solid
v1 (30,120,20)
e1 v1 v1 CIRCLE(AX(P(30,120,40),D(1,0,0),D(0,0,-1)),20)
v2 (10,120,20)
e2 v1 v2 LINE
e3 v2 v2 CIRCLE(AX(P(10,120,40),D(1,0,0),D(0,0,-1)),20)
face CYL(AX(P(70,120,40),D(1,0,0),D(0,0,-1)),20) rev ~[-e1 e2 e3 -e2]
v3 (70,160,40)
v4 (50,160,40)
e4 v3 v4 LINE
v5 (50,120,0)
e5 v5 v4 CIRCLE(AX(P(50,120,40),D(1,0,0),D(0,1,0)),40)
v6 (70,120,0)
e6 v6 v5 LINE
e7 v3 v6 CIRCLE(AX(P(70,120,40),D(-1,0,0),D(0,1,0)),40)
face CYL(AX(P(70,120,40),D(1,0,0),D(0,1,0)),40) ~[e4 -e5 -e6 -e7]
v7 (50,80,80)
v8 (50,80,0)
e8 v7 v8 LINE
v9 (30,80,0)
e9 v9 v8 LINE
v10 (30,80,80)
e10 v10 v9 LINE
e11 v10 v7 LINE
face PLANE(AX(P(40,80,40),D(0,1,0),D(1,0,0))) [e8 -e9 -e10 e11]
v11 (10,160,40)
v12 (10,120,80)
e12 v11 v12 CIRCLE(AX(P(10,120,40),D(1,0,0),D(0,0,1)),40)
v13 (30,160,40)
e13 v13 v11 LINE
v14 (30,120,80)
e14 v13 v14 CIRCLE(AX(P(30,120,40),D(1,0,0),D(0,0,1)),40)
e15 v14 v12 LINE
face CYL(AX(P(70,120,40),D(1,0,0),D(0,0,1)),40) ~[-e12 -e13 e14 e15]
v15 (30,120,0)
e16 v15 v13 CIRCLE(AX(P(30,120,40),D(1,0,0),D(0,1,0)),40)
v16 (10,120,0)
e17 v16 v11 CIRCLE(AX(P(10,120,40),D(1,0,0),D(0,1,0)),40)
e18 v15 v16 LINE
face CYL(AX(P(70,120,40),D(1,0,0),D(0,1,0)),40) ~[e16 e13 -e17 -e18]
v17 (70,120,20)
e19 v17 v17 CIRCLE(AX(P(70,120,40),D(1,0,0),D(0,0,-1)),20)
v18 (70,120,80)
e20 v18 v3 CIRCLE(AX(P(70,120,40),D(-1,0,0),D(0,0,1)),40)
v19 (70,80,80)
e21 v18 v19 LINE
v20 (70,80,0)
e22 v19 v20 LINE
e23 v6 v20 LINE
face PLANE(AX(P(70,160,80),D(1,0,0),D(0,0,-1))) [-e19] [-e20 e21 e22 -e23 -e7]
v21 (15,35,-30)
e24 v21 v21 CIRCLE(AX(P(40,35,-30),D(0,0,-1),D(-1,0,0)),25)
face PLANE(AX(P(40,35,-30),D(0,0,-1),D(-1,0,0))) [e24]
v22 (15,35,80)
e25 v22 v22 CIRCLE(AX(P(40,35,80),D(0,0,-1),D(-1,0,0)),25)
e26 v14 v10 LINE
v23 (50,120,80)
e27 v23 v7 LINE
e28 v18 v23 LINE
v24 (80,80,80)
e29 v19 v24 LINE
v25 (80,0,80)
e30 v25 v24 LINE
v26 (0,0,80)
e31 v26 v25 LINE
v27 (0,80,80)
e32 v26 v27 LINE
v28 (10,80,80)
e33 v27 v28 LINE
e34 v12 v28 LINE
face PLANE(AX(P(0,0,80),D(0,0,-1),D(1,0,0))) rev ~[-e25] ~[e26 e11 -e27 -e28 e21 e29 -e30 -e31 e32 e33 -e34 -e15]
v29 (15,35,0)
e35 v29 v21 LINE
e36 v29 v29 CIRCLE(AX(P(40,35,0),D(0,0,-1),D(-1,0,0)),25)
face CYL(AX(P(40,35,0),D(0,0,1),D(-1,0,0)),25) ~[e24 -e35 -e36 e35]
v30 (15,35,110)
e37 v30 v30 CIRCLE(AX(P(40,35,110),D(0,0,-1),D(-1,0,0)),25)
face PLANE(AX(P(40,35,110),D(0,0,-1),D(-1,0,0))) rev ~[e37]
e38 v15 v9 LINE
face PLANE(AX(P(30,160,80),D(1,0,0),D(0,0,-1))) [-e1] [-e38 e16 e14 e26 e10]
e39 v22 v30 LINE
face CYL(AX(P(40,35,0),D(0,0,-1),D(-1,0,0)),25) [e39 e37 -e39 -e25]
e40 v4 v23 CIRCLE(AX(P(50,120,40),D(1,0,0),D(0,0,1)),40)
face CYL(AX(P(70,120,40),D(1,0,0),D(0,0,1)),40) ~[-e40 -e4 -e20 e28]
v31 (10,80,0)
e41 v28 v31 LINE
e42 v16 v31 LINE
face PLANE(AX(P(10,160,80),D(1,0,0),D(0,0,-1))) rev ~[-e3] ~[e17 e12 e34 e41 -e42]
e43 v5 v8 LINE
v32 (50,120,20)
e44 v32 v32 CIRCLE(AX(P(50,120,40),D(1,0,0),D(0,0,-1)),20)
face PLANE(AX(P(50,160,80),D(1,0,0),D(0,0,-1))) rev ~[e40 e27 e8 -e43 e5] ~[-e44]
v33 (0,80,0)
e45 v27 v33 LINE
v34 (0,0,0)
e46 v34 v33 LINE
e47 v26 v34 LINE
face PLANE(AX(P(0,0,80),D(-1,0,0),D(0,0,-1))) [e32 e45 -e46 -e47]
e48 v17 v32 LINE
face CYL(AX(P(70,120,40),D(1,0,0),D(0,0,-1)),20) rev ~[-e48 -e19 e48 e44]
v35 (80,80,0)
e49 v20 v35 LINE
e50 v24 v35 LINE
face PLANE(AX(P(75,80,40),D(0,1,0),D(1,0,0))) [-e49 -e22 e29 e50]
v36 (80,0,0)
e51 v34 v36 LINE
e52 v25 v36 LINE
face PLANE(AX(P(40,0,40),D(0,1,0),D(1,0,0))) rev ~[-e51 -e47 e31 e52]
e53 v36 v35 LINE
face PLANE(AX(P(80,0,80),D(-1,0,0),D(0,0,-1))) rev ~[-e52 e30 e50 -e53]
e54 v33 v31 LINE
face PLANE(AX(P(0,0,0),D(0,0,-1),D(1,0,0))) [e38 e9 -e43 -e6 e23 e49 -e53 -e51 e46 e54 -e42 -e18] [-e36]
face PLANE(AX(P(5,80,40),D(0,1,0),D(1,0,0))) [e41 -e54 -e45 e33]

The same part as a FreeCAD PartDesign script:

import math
import FreeCAD as App
import Part
import Sketcher
Q = App.Units.Quantity


def add_polygon(sketch, points):
    """Adds a closed chain of lines whose ends are joined by coincident constraints."""
    first, n = sketch.GeometryCount, len(points)
    for a, b in zip(points, points[1:] + points[:1]):
        sketch.addGeometry(Part.LineSegment(App.Vector(*a, 0), App.Vector(*b, 0)), False)
    for i in range(n):
        sketch.addConstraint(Sketcher.Constraint("Coincident", first + i, 2, first + (i + 1) % n, 1))

doc = App.newDocument("Part")
body = doc.addObject("PartDesign::Body", "Body")

# Sketch on XZ plane
sketch1 = body.newObject("Sketcher::SketchObject", "Sketch")
sketch1.AttachmentSupport = (doc.getObject("XZ_Plane"), [""])
sketch1.MapMode = "FlatFace"
add_polygon(sketch1, [(0, 0), (0, 80), (80, 80), (80, 0)])  # lines 0-3
sketch1.addConstraint([
    Sketcher.Constraint("Vertical", 0),
    Sketcher.Constraint("Horizontal", 1),
    Sketcher.Constraint("Vertical", 2),
    Sketcher.Constraint("Horizontal", 3),
    Sketcher.Constraint("Coincident", 3, 2, -1, 1),
    Sketcher.Constraint("Equal", 3, 0),
    Sketcher.Constraint("DistanceX", 1, 1, 1, 2, Q("80 mm")),
])
pad1 = body.newObject("PartDesign::Pad", "Pad")
pad1.Profile = sketch1
pad1.Length = 160
pad1.Reversed = True

# Sketch on XZ plane
sketch2 = body.newObject("Sketcher::SketchObject", "Sketch001")
sketch2.AttachmentSupport = (doc.getObject("XZ_Plane"), [""])
sketch2.MapMode = "FlatFace"
sketch2.AttachmentOffset = App.Placement(App.Vector(0, 0, -160), App.Rotation())
add_polygon(sketch2, [(0, 0), (0, 80), (10, 80), (10, 0)])  # lines 0-3
add_polygon(sketch2, [(70, 0), (70, 80), (80, 80), (80, 0)])  # lines 4-7
sketch2.addConstraint([
    Sketcher.Constraint("Vertical", 0),
    Sketcher.Constraint("Horizontal", 1),
    Sketcher.Constraint("Vertical", 2),
    Sketcher.Constraint("Horizontal", 3),
    Sketcher.Constraint("Vertical", 4),
    Sketcher.Constraint("Horizontal", 5),
    Sketcher.Constraint("Vertical", 6),
    Sketcher.Constraint("Horizontal", 7),
    Sketcher.Constraint("Coincident", 3, 2, -1, 1),
    Sketcher.Constraint("PointOnObject", 6, 2, -1),
    Sketcher.Constraint("Horizontal", 1, 2, 4, 2),
    Sketcher.Constraint("Equal", 3, 5),
    Sketcher.Constraint("DistanceX", 1, 1, 1, 2, Q("10 mm")),
    Sketcher.Constraint("DistanceY", 0, 1, 0, 2, Q("80 mm")),
    Sketcher.Constraint("DistanceX", -1, 1, 4, 2, Q("70 mm")),
])
pocket1 = body.newObject("PartDesign::Pocket", "Pocket")
pocket1.Profile = sketch2
pocket1.Length = 80
pocket1.Reversed = True

# Sketch on XZ plane
sketch3 = body.newObject("Sketcher::SketchObject", "Sketch002")
sketch3.AttachmentSupport = (doc.getObject("XZ_Plane"), [""])
sketch3.MapMode = "FlatFace"
sketch3.AttachmentOffset = App.Placement(App.Vector(0, 0, -160), App.Rotation())
add_polygon(sketch3, [(30, 0), (30, 80), (50, 80), (50, 0)])  # lines 0-3
sketch3.addConstraint([
    Sketcher.Constraint("Vertical", 0),
    Sketcher.Constraint("Horizontal", 1),
    Sketcher.Constraint("Vertical", 2),
    Sketcher.Constraint("Horizontal", 3),
    Sketcher.Constraint("PointOnObject", 2, 2, -1),
    Sketcher.Constraint("DistanceX", 1, 1, 1, 2, Q("20 mm")),
    Sketcher.Constraint("DistanceY", 0, 1, 0, 2, Q("80 mm")),
    Sketcher.Constraint("DistanceX", -1, 1, 0, 2, Q("30 mm")),
])
pocket2 = body.newObject("PartDesign::Pocket", "Pocket001")
pocket2.Profile = sketch3
pocket2.Length = 80
pocket2.Reversed = True

# Sketch on YZ plane
sketch4 = body.newObject("Sketcher::SketchObject", "Sketch003")
sketch4.AttachmentSupport = (doc.getObject("YZ_Plane"), [""])
sketch4.MapMode = "FlatFace"
sketch4.AttachmentOffset = App.Placement(App.Vector(0, 0, 70), App.Rotation())
sketch4.addGeometry([
    Part.LineSegment(App.Vector(160, 80, 0), App.Vector(120, 80, 0)),  # 0
    Part.ArcOfCircle(Part.Circle(App.Vector(120, 40, 0), App.Vector(0, 0, 1), 40), math.radians(0), math.radians(90)),  # 1
    Part.LineSegment(App.Vector(160, 40, 0), App.Vector(160, 80, 0)),  # 2
    Part.LineSegment(App.Vector(160, 0, 0), App.Vector(160, 40, 0)),  # 3
    Part.ArcOfCircle(Part.Circle(App.Vector(120, 40, 0), App.Vector(0, 0, 1), 40), math.radians(-90), math.radians(0)),  # 4
    Part.LineSegment(App.Vector(120, 0, 0), App.Vector(160, 0, 0)),  # 5
    Part.Circle(App.Vector(120, 40, 0), App.Vector(0, 0, 1), 20),  # 6
], False)
sketch4.addConstraint([
    Sketcher.Constraint("Tangent", 0, 2, 1, 2),
    Sketcher.Constraint("Tangent", 1, 1, 2, 1),
    Sketcher.Constraint("Coincident", 2, 2, 0, 1),
    Sketcher.Constraint("Tangent", 3, 2, 4, 2),
    Sketcher.Constraint("Tangent", 4, 1, 5, 1),
    Sketcher.Constraint("Coincident", 5, 2, 3, 1),
    Sketcher.Constraint("Horizontal", 0),
    Sketcher.Constraint("Vertical", 2),
    Sketcher.Constraint("Vertical", 3),
    Sketcher.Constraint("Horizontal", 5),
    Sketcher.Constraint("Coincident", 4, 3, 1, 3),
    Sketcher.Constraint("Coincident", 6, 3, 1, 3),
    Sketcher.Constraint("Equal", 1, 4),
    Sketcher.Constraint("PointOnObject", 4, 1, -1),
    Sketcher.Constraint("Diameter", 6, Q("40 mm")),
    Sketcher.Constraint("Radius", 1, Q("40 mm")),
    Sketcher.Constraint("DistanceX", -1, 1, 1, 3, Q("120 mm")),
])
pocket3 = body.newObject("PartDesign::Pocket", "Pocket002")
pocket3.Profile = sketch4
pocket3.Length = 80

# Sketch on XY plane
sketch5 = body.newObject("Sketcher::SketchObject", "Sketch004")
sketch5.AttachmentSupport = (doc.getObject("XY_Plane"), [""])
sketch5.MapMode = "FlatFace"
sketch5.addGeometry(Part.Circle(App.Vector(40, 35, 0), App.Vector(0, 0, 1), 25), False)
sketch5.addConstraint([
    Sketcher.Constraint("Diameter", 0, Q("50 mm")),
    Sketcher.Constraint("DistanceX", -1, 1, 0, 3, Q("40 mm")),
    Sketcher.Constraint("DistanceY", -1, 1, 0, 3, Q("35 mm")),
])
pad2 = body.newObject("PartDesign::Pad", "Pad001")
pad2.Profile = sketch5
pad2.Type = "TwoLengths"
pad2.Length = 30
pad2.Length2 = 110
pad2.Reversed = True

doc.recompute()
